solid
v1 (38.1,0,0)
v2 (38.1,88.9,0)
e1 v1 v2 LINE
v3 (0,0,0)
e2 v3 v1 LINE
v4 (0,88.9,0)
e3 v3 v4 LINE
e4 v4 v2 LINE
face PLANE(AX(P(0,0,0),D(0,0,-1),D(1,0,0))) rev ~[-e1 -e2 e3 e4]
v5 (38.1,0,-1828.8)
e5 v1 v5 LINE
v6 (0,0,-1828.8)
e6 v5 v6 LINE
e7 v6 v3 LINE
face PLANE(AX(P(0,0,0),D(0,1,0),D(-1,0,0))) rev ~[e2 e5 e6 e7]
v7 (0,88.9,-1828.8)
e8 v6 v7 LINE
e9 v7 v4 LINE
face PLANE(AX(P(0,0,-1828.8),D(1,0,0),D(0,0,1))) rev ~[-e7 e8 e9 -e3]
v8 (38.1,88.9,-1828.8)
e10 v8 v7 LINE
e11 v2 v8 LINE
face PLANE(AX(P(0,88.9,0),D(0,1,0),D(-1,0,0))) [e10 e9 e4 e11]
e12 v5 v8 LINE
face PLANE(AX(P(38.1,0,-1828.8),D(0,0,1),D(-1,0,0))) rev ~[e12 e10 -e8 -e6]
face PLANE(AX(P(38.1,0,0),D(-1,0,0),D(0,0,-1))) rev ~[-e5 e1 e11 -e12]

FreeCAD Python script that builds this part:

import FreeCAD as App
import Part
import Sketcher

V = App.Vector
Q = App.Units.Quantity

doc = App.newDocument("Part")
params = doc.addObject("Spreadsheet::Sheet", "Params")
for row, (alias, value) in enumerate([
    ("sketch1_height", "72 in"),
    ("sketch1_width", "1.5 in"),
    ("pad1_length", "3.5 in"),
], start=1):
    params.set(f"A{row}", alias)
    params.set(f"B{row}", "=" + value)
    params.setAlias(f"B{row}", alias)

body = doc.addObject("PartDesign::Body", "Body")

# Sketch on XZ plane
sketch1 = body.newObject("Sketcher::SketchObject", "Sketch")
sketch1.AttachmentSupport = (doc.getObject("XZ_Plane"), [""])
sketch1.MapMode = "FlatFace"
sketch1.addGeometry(Part.LineSegment(V(0, -1828.8, 0), V(0, 0, 0)), False)
sketch1.addGeometry(Part.LineSegment(V(0, 0, 0), V(38.1, 0, 0)), False)
sketch1.addGeometry(Part.LineSegment(V(38.1, 0, 0), V(38.1, -1828.8, 0)), False)
sketch1.addGeometry(Part.LineSegment(V(38.1, -1828.8, 0), V(0, -1828.8, 0)), False)
sketch1.addConstraint(Sketcher.Constraint("Coincident", 0, 2, 1, 1))
sketch1.addConstraint(Sketcher.Constraint("Coincident", 1, 2, 2, 1))
sketch1.addConstraint(Sketcher.Constraint("Coincident", 2, 2, 3, 1))
sketch1.addConstraint(Sketcher.Constraint("Coincident", 3, 2, 0, 1))
sketch1.addConstraint(Sketcher.Constraint("Vertical", 0))
sketch1.addConstraint(Sketcher.Constraint("Horizontal", 1))
sketch1.addConstraint(Sketcher.Constraint("Vertical", 2))
sketch1.addConstraint(Sketcher.Constraint("Horizontal", 3))
sketch1.addConstraint(Sketcher.Constraint("Coincident", 0, 2, -1, 1))
sketch1.addConstraint(Sketcher.Constraint("DistanceY", 0, 1, 0, 2, Q("72 in")))
sketch1.addConstraint(Sketcher.Constraint("DistanceX", 1, 1, 1, 2, Q("1.5 in")))
sketch1.setExpression("Constraints[9]", "Params.sketch1_height")
sketch1.setExpression("Constraints[10]", "Params.sketch1_width")
pad1 = body.newObject("PartDesign::Pad", "Pad")
pad1.Profile = sketch1
pad1.setExpression("Length", "Params.pad1_length")
pad1.Reversed = True

doc.recompute()
